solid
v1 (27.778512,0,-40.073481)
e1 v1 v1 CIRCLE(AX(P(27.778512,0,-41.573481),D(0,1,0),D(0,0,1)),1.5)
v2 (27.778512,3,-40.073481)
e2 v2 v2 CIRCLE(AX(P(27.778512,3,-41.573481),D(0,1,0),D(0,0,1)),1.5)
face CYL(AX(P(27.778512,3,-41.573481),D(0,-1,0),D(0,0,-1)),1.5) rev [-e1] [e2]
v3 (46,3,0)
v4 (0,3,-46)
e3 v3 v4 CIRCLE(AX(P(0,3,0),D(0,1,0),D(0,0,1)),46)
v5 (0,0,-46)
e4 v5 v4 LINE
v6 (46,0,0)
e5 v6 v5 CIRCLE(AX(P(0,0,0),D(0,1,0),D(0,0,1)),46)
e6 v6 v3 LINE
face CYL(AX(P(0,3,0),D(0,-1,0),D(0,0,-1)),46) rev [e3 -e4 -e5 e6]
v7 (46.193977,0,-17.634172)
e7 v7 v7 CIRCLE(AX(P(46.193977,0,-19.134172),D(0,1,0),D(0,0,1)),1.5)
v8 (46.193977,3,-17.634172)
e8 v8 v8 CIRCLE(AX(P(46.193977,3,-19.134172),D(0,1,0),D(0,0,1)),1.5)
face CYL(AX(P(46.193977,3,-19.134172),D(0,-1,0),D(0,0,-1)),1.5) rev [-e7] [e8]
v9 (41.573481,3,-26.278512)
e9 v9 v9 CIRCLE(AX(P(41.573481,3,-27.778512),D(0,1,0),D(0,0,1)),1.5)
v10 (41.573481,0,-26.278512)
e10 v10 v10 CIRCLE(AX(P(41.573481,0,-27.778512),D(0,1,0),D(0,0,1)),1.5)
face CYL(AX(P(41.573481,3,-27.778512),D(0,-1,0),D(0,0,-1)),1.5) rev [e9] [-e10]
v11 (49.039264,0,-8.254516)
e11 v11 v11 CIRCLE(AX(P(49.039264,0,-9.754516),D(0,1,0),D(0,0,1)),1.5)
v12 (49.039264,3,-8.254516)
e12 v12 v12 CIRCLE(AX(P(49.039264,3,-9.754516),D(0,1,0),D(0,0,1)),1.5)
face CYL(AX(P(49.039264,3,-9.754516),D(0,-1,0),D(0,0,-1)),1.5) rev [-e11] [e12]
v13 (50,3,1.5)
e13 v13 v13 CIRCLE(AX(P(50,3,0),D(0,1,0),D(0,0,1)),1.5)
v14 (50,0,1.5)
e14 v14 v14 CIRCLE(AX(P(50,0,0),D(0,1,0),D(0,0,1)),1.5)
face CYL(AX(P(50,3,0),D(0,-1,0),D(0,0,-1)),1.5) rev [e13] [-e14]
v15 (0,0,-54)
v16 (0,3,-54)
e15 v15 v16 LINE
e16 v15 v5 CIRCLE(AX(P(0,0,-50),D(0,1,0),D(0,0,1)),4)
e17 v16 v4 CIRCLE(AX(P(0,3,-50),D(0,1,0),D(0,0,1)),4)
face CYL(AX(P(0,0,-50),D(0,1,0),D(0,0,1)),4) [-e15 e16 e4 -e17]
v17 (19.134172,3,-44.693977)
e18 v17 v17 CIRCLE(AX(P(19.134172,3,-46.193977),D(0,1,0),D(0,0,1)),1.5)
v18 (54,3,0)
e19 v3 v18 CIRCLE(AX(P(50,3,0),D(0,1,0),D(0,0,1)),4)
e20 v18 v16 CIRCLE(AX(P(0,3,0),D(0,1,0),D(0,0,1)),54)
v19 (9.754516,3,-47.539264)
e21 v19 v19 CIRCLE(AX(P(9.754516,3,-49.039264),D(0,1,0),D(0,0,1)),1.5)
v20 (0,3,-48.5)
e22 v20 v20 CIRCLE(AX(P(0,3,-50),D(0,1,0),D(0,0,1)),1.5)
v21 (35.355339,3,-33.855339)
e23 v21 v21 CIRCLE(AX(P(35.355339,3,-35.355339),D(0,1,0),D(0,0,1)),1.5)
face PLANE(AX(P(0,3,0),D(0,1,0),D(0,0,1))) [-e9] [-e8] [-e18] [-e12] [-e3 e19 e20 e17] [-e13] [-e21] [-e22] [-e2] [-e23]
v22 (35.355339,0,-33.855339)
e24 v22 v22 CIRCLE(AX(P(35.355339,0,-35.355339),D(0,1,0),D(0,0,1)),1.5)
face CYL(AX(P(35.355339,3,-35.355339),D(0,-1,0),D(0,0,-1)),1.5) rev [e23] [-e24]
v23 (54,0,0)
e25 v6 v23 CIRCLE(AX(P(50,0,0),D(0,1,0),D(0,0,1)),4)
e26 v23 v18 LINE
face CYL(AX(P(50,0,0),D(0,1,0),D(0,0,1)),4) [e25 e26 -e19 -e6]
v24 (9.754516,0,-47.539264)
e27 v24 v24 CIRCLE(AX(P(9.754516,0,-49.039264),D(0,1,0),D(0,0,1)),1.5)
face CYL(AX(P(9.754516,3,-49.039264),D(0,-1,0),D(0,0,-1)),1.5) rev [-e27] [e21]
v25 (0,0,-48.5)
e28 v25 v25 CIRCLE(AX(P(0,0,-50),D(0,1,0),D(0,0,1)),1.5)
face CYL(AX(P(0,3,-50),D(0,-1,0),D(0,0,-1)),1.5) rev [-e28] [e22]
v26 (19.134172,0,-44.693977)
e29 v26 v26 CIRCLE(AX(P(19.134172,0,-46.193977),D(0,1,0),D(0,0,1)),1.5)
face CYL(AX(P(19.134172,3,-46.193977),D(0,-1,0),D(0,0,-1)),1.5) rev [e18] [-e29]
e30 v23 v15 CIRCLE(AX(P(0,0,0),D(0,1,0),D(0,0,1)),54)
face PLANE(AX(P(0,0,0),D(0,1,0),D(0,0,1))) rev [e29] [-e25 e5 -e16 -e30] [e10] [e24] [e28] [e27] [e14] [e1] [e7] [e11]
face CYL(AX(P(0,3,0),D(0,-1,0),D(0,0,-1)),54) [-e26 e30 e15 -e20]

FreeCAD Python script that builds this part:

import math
import FreeCAD as App
import Part
import Sketcher

V = App.Vector

doc = App.newDocument("Part")
body = doc.addObject("PartDesign::Body", "Body")

# Sketch on XZ plane
sketch1 = body.newObject("Sketcher::SketchObject", "Sketch")
sketch1.AttachmentSupport = (doc.getObject("XZ_Plane"), [""])
sketch1.MapMode = "FlatFace"
sketch1.addGeometry(Part.LineSegment(V(-5.292926, -53.739975, 0), V(-4.508788, -45.778497, 0)), False)
sketch1.addGeometry(Part.ArcOfCircle(Part.Circle(V(0, 0, 0), V(0, 0, 1), 46), math.radians(-95.625), math.radians(-90)), False)
sketch1.addGeometry(Part.ArcOfCircle(Part.Circle(V(0, 0, 0), V(0, 0, 1), 46), math.radians(-90), math.radians(0)), False)
sketch1.addGeometry(Part.ArcOfCircle(Part.Circle(V(0, 0, 0), V(0, 0, 1), 46), math.radians(0), math.radians(5.625)), False)
sketch1.addGeometry(Part.LineSegment(V(45.778497, 4.508788, 0), V(53.739975, 5.292926, 0)), False)
sketch1.addGeometry(Part.ArcOfCircle(Part.Circle(V(0, 0, 0), V(0, 0, 1), 54), math.radians(0), math.radians(5.625)), False)
sketch1.addGeometry(Part.ArcOfCircle(Part.Circle(V(0, 0, 0), V(0, 0, 1), 54), math.radians(-95.625), math.radians(0)), False)
sketch1.addGeometry(Part.Circle(V(50, 0, 0), V(0, 0, 1), 1.5), False)
sketch1.addGeometry(Part.Circle(V(49.039264, -9.754516, 0), V(0, 0, 1), 1.5), False)
sketch1.addGeometry(Part.Circle(V(46.193977, -19.134172, 0), V(0, 0, 1), 1.5), False)
sketch1.addGeometry(Part.Circle(V(0, -50, 0), V(0, 0, 1), 1.5), False)
sketch1.addGeometry(Part.Circle(V(9.754516, -49.039264, 0), V(0, 0, 1), 1.5), False)
sketch1.addGeometry(Part.Circle(V(19.134172, -46.193977, 0), V(0, 0, 1), 1.5), False)
sketch1.addGeometry(Part.Circle(V(35.355339, -35.355339, 0), V(0, 0, 1), 1.5), False)
sketch1.addGeometry(Part.Circle(V(41.573481, -27.778512, 0), V(0, 0, 1), 1.5), False)
sketch1.addGeometry(Part.Circle(V(27.778512, -41.573481, 0), V(0, 0, 1), 1.5), False)
sketch1.addConstraint(Sketcher.Constraint("Coincident", 0, 2, 1, 1))
sketch1.addConstraint(Sketcher.Constraint("Tangent", 1, 2, 2, 1))
sketch1.addConstraint(Sketcher.Constraint("Tangent", 2, 2, 3, 1))
sketch1.addConstraint(Sketcher.Constraint("Coincident", 3, 2, 4, 1))
sketch1.addConstraint(Sketcher.Constraint("Coincident", 4, 2, 5, 2))
sketch1.addConstraint(Sketcher.Constraint("Tangent", 5, 1, 6, 2))
sketch1.addConstraint(Sketcher.Constraint("Coincident", 6, 1, 0, 1))
sketch1.addConstraint(Sketcher.Constraint("Coincident", 1, 3, -1, 1))
sketch1.addConstraint(Sketcher.Constraint("Coincident", 3, 3, -1, 1))
sketch1.addConstraint(Sketcher.Constraint("Coincident", 5, 3, -1, 1))
sketch1.addConstraint(Sketcher.Constraint("Equal", 5, 6))
sketch1.addConstraint(Sketcher.Constraint("Equal", 7, 8))
sketch1.addConstraint(Sketcher.Constraint("Equal", 8, 9))
sketch1.addConstraint(Sketcher.Constraint("Equal", 9, 10))
sketch1.addConstraint(Sketcher.Constraint("Equal", 10, 11))
sketch1.addConstraint(Sketcher.Constraint("Equal", 11, 12))
sketch1.addConstraint(Sketcher.Constraint("Equal", 12, 13))
sketch1.addConstraint(Sketcher.Constraint("Equal", 13, 14))
sketch1.addConstraint(Sketcher.Constraint("Equal", 14, 15))
sketch1.addConstraint(Sketcher.Constraint("PointOnObject", 7, 3, -1))
sketch1.addConstraint(Sketcher.Constraint("PointOnObject", 10, 3, -2))
sketch1.addConstraint(Sketcher.Constraint("PointOnObject", 1, 2, -2))
sketch1.addConstraint(Sketcher.Constraint("PointOnObject", 2, 2, -1))
sketch1.addConstraint(Sketcher.Constraint("PointOnObject", 5, 1, -1))
sketch1.addConstraint(Sketcher.Constraint("Diameter", 7, 3.0))
sketch1.addConstraint(Sketcher.Constraint("Radius", 1, 46.0))
sketch1.addConstraint(Sketcher.Constraint("Radius", 5, 54.0))
sketch1.addConstraint(Sketcher.Constraint("DistanceX", -1, 1, 7, 3, 50.0))
sketch1.addConstraint(Sketcher.Constraint("DistanceY", 10, 3, -1, 1, 50.0))
sketch1.addConstraint(Sketcher.Constraint("DistanceX", 9, 3, 4, 2, 7.545999))
sketch1.addConstraint(Sketcher.Constraint("DistanceY", 6, 1, 12, 3, 7.545999))
sketch1.addConstraint(Sketcher.Constraint("DistanceX", 0, 2, 15, 3, 32.2873))
sketch1.addConstraint(Sketcher.Constraint("DistanceY", 14, 3, 3, 2, 32.2873))
sketch1.addConstraint(Sketcher.Constraint("DistanceY", 9, 3, -1, 1, 19.134172))
sketch1.addConstraint(Sketcher.Constraint("DistanceX", -1, 1, 12, 3, 19.134172))
sketch1.addConstraint(Sketcher.Constraint("DistanceX", -1, 1, 13, 3, 35.355339))
sketch1.addConstraint(Sketcher.Constraint("DistanceY", 13, 3, -1, 1, 35.355339))
sketch1.addConstraint(Sketcher.Constraint("DistanceX", -1, 1, 14, 3, 41.573481))
sketch1.addConstraint(Sketcher.Constraint("DistanceY", 14, 3, -1, 1, 27.778512))
sketch1.addConstraint(Sketcher.Constraint("DistanceX", -1, 1, 15, 3, 27.778512))
sketch1.addConstraint(Sketcher.Constraint("DistanceY", 15, 3, -1, 1, 41.573481))
sketch1.addConstraint(Sketcher.Constraint("DistanceX", 11, 3, 9, 3, 36.439461))
sketch1.addConstraint(Sketcher.Constraint("DistanceY", 12, 3, 8, 3, 36.439461))
sketch1.addConstraint(Sketcher.Constraint("DistanceY", 12, 3, 0, 2, 0.415479))
sketch1.addConstraint(Sketcher.Constraint("DistanceX", 3, 2, 9, 3, 0.415479))
sketch1.addConstraint(Sketcher.Constraint("DistanceX", 8, 3, 4, 2, 4.700711))
sketch1.addConstraint(Sketcher.Constraint("DistanceY", 6, 1, 11, 3, 4.700711))
pad1 = body.newObject("PartDesign::Pad", "Pad")
pad1.Profile = sketch1
pad1.Length = 3
pad1.Reversed = True

# Sketch on XZ plane
sketch2 = body.newObject("Sketcher::SketchObject", "Sketch001")
sketch2.AttachmentSupport = (doc.getObject("XZ_Plane"), [""])
sketch2.MapMode = "FlatFace"
sketch2.addGeometry(Part.ArcOfCircle(Part.Circle(V(0, -50, 0), V(0, 0, 1), 4), math.radians(90), math.radians(270.000001)), False)
sketch2.addGeometry(Part.ArcOfCircle(Part.Circle(V(0, 0, 0), V(0, 0, 1), 54), math.radians(-95.625), math.radians(-90)), False)
sketch2.addGeometry(Part.LineSegment(V(-5.292926, -53.739975, 0), V(-4.508788, -45.778497, 0)), False)
sketch2.addGeometry(Part.ArcOfCircle(Part.Circle(V(0, 0, 0), V(0, 0, 1), 46), math.radians(-95.625), math.radians(-90)), False)
sketch2.addGeometry(Part.ArcOfCircle(Part.Circle(V(0, 0, 0), V(0, 0, 1), 54), math.radians(0), math.radians(5.625)), False)
sketch2.addGeometry(Part.ArcOfCircle(Part.Circle(V(50, 0, 0), V(0, 0, 1), 4), math.radians(0), math.radians(180.000003)), False)
sketch2.addGeometry(Part.ArcOfCircle(Part.Circle(V(0, 0, 0), V(0, 0, 1), 46), math.radians(0), math.radians(5.625)), False)
sketch2.addGeometry(Part.LineSegment(V(45.778497, 4.508788, 0), V(53.739975, 5.292926, 0)), False)
sketch2.addConstraint(Sketcher.Constraint("Tangent", 0, 2, 1, 2))
sketch2.addConstraint(Sketcher.Constraint("Coincident", 1, 1, 2, 1))
sketch2.addConstraint(Sketcher.Constraint("Coincident", 2, 2, 3, 1))
sketch2.addConstraint(Sketcher.Constraint("Tangent", 3, 2, 0, 1))
sketch2.addConstraint(Sketcher.Constraint("Tangent", 4, 1, 5, 1))
sketch2.addConstraint(Sketcher.Constraint("Tangent", 5, 2, 6, 1))
sketch2.addConstraint(Sketcher.Constraint("Coincident", 6, 2, 7, 1))
sketch2.addConstraint(Sketcher.Constraint("Coincident", 7, 2, 4, 2))
sketch2.addConstraint(Sketcher.Constraint("Coincident", 1, 3, -1, 1))
sketch2.addConstraint(Sketcher.Constraint("Coincident", 3, 3, -1, 1))
sketch2.addConstraint(Sketcher.Constraint("Coincident", 4, 3, -1, 1))
sketch2.addConstraint(Sketcher.Constraint("Coincident", 6, 3, -1, 1))
sketch2.addConstraint(Sketcher.Constraint("Equal", 1, 4))
sketch2.addConstraint(Sketcher.Constraint("Equal", 0, 5))
sketch2.addConstraint(Sketcher.Constraint("PointOnObject", 0, 3, -2))
sketch2.addConstraint(Sketcher.Constraint("PointOnObject", 5, 3, -1))
sketch2.addConstraint(Sketcher.Constraint("Radius", 0, 4.0))
sketch2.addConstraint(Sketcher.Constraint("Radius", 1, 54.0))
sketch2.addConstraint(Sketcher.Constraint("DistanceX", 2, 2, -1, 1, 4.508788))
sketch2.addConstraint(Sketcher.Constraint("DistanceY", -1, 1, 6, 2, 4.508788))
sketch2.addConstraint(Sketcher.Constraint("DistanceX", 1, 1, -1, 1, 5.292926))
sketch2.addConstraint(Sketcher.Constraint("DistanceX", -1, 1, 7, 2, 53.739975))
pocket1 = body.newObject("PartDesign::Pocket", "Pocket")
pocket1.Profile = sketch2
pocket1.Length = 3

doc.recompute()
